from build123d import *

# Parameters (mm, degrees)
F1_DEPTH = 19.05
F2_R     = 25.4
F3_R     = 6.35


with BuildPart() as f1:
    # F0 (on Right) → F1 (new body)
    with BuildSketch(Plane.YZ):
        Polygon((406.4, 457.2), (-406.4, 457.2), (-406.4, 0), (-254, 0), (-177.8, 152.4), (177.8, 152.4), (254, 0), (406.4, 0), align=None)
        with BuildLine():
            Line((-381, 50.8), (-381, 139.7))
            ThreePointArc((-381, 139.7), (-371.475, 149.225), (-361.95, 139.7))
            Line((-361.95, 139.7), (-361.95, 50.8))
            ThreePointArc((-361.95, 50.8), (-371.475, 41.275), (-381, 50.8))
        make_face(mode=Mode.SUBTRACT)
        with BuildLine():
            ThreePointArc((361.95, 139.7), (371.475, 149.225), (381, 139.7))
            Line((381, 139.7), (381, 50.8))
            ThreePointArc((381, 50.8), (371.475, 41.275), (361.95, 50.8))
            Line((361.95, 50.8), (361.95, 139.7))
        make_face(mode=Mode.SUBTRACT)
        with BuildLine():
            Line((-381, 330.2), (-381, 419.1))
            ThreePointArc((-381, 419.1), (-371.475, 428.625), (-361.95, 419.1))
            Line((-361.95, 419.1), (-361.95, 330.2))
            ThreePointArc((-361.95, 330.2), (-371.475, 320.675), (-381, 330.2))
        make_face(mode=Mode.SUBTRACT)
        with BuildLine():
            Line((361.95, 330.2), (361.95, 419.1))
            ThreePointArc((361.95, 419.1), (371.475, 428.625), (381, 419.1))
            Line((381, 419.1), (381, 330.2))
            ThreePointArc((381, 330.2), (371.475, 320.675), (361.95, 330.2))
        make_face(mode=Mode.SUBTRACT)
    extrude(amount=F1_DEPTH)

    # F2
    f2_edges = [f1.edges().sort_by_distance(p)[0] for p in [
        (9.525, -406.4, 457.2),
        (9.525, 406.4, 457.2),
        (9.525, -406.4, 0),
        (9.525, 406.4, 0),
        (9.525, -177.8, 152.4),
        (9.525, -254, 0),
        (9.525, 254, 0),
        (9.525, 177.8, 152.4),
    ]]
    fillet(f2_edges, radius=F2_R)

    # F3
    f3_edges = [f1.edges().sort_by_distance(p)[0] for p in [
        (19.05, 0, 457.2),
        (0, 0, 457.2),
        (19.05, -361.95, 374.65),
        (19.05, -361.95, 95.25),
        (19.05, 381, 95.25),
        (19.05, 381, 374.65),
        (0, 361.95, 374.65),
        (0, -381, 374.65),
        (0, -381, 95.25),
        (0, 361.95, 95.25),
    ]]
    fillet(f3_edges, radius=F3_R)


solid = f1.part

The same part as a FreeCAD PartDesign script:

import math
import FreeCAD as App
import Part
import Sketcher
Q = App.Units.Quantity


def edges_at(feature, points):
    """Names of the edges that pass closest to the given points."""
    edges = feature.Shape.Edges
    near = lambda p: min(range(len(edges)), key=lambda i: edges[i].distToShape(Part.Vertex(*p))[0])
    return sorted({f"Edge{near(p) + 1}" for p in points})

doc = App.newDocument("Part")
params = doc.addObject("Spreadsheet::Sheet", "Params")
for row, (alias, value) in enumerate([
    ("sketch1_width", "32 in"),
    ("sketch1_width2", "6 in"),
    ("sketch1_width3", "14 in"),
    ("sketch1_height", "18 in"),
    ("sketch1_height2", "3.5 in"),
    ("pad1_length", "0.75 in"),
    ("fillet_radius", "1 in"),
    ("fillet2_radius", "0.25 in"),
], start=1):
    params.set(f"A{row}", alias)
    params.set(f"B{row}", "=" + value)
    params.setAlias(f"B{row}", alias)

body = doc.addObject("PartDesign::Body", "Body")

# Sketch on YZ plane
sketch1 = doc.addObject("Sketcher::SketchObject", "Sketch")
body.addObject(sketch1)
sketch1.AttachmentSupport = (doc.YZ_Plane, [""])
sketch1.MapMode = "FlatFace"
sketch1.addGeometry(Part.LineSegment(App.Vector(406, 457, 0), App.Vector(-406, 457, 0)), False)
sketch1.addGeometry(Part.LineSegment(App.Vector(-406, 457, 0), App.Vector(-406, 0, 0)), False)
sketch1.addGeometry(Part.LineSegment(App.Vector(-406, 0, 0), App.Vector(-254, 0, 0)), False)
sketch1.addGeometry(Part.LineSegment(App.Vector(-254, 0, 0), App.Vector(-178, 152, 0)), False)
sketch1.addGeometry(Part.LineSegment(App.Vector(-178, 152, 0), App.Vector(178, 152, 0)), False)
sketch1.addGeometry(Part.LineSegment(App.Vector(178, 152, 0), App.Vector(254, 0, 0)), False)
sketch1.addGeometry(Part.LineSegment(App.Vector(254, 0, 0), App.Vector(406, 0, 0)), False)
sketch1.addGeometry(Part.LineSegment(App.Vector(406, 0, 0), App.Vector(406, 457, 0)), False)
sketch1.addGeometry(Part.ArcOfCircle(Part.Circle(App.Vector(-371, 51, 0), App.Vector(0, 0, 1), 10), math.radians(180), math.radians(360)), False)
sketch1.addGeometry(Part.LineSegment(App.Vector(-381, 51, 0), App.Vector(-381, 140, 0)), False)
sketch1.addGeometry(Part.ArcOfCircle(Part.Circle(App.Vector(-371, 140, 0), App.Vector(0, 0, 1), 10), math.radians(0), math.radians(180)), False)
sketch1.addGeometry(Part.LineSegment(App.Vector(-362, 140, 0), App.Vector(-362, 51, 0)), False)
sketch1.addGeometry(Part.LineSegment(App.Vector(362, 51, 0), App.Vector(362, 140, 0)), False)
sketch1.addGeometry(Part.ArcOfCircle(Part.Circle(App.Vector(371, 140, 0), App.Vector(0, 0, 1), 10), math.radians(0), math.radians(180)), False)
sketch1.addGeometry(Part.LineSegment(App.Vector(381, 140, 0), App.Vector(381, 51, 0)), False)
sketch1.addGeometry(Part.ArcOfCircle(Part.Circle(App.Vector(371, 51, 0), App.Vector(0, 0, 1), 10), math.radians(180), math.radians(360)), False)
sketch1.addGeometry(Part.ArcOfCircle(Part.Circle(App.Vector(-371, 330, 0), App.Vector(0, 0, 1), 10), math.radians(180), math.radians(360)), False)
sketch1.addGeometry(Part.LineSegment(App.Vector(-381, 330, 0), App.Vector(-381, 419, 0)), False)
sketch1.addGeometry(Part.ArcOfCircle(Part.Circle(App.Vector(-371, 419, 0), App.Vector(0, 0, 1), 10), math.radians(0), math.radians(180)), False)
sketch1.addGeometry(Part.LineSegment(App.Vector(-362, 419, 0), App.Vector(-362, 330, 0)), False)
sketch1.addGeometry(Part.ArcOfCircle(Part.Circle(App.Vector(371, 330, 0), App.Vector(0, 0, 1), 10), math.radians(180), math.radians(360)), False)
sketch1.addGeometry(Part.LineSegment(App.Vector(362, 330, 0), App.Vector(362, 419, 0)), False)
sketch1.addGeometry(Part.ArcOfCircle(Part.Circle(App.Vector(371, 419, 0), App.Vector(0, 0, 1), 10), math.radians(0), math.radians(180)), False)
sketch1.addGeometry(Part.LineSegment(App.Vector(381, 419, 0), App.Vector(381, 330, 0)), False)
sketch1.addConstraint(Sketcher.Constraint("Coincident", 0, 2, 1, 1))
sketch1.addConstraint(Sketcher.Constraint("Coincident", 1, 2, 2, 1))
sketch1.addConstraint(Sketcher.Constraint("Coincident", 2, 2, 3, 1))
sketch1.addConstraint(Sketcher.Constraint("Coincident", 3, 2, 4, 1))
sketch1.addConstraint(Sketcher.Constraint("Coincident", 4, 2, 5, 1))
sketch1.addConstraint(Sketcher.Constraint("Coincident", 5, 2, 6, 1))
sketch1.addConstraint(Sketcher.Constraint("Coincident", 6, 2, 7, 1))
sketch1.addConstraint(Sketcher.Constraint("Coincident", 7, 2, 0, 1))
sketch1.addConstraint(Sketcher.Constraint("Tangent", 8, 1, 9, 1))
sketch1.addConstraint(Sketcher.Constraint("Tangent", 9, 2, 10, 2))
sketch1.addConstraint(Sketcher.Constraint("Tangent", 10, 1, 11, 1))
sketch1.addConstraint(Sketcher.Constraint("Tangent", 11, 2, 8, 2))
sketch1.addConstraint(Sketcher.Constraint("Tangent", 12, 2, 13, 2))
sketch1.addConstraint(Sketcher.Constraint("Tangent", 13, 1, 14, 1))
sketch1.addConstraint(Sketcher.Constraint("Tangent", 14, 2, 15, 2))
sketch1.addConstraint(Sketcher.Constraint("Tangent", 15, 1, 12, 1))
sketch1.addConstraint(Sketcher.Constraint("Tangent", 16, 1, 17, 1))
sketch1.addConstraint(Sketcher.Constraint("Tangent", 17, 2, 18, 2))
sketch1.addConstraint(Sketcher.Constraint("Tangent", 18, 1, 19, 1))
sketch1.addConstraint(Sketcher.Constraint("Tangent", 19, 2, 16, 2))
sketch1.addConstraint(Sketcher.Constraint("Tangent", 20, 1, 21, 1))
sketch1.addConstraint(Sketcher.Constraint("Tangent", 21, 2, 22, 2))
sketch1.addConstraint(Sketcher.Constraint("Tangent", 22, 1, 23, 1))
sketch1.addConstraint(Sketcher.Constraint("Tangent", 23, 2, 20, 2))
sketch1.addConstraint(Sketcher.Constraint("Horizontal", 0))
sketch1.addConstraint(Sketcher.Constraint("Vertical", 1))
sketch1.addConstraint(Sketcher.Constraint("Horizontal", 2))
sketch1.addConstraint(Sketcher.Constraint("Horizontal", 4))
sketch1.addConstraint(Sketcher.Constraint("Horizontal", 6))
sketch1.addConstraint(Sketcher.Constraint("Vertical", 7))
sketch1.addConstraint(Sketcher.Constraint("Vertical", 9))
sketch1.addConstraint(Sketcher.Constraint("Vertical", 11))
sketch1.addConstraint(Sketcher.Constraint("Vertical", 12))
sketch1.addConstraint(Sketcher.Constraint("Vertical", 14))
sketch1.addConstraint(Sketcher.Constraint("Vertical", 17))
sketch1.addConstraint(Sketcher.Constraint("Vertical", 19))
sketch1.addConstraint(Sketcher.Constraint("Vertical", 21))
sketch1.addConstraint(Sketcher.Constraint("Vertical", 23))
sketch1.addConstraint(Sketcher.Constraint("Equal", 10, 13))
sketch1.addConstraint(Sketcher.Constraint("Equal", 15, 16))
sketch1.addConstraint(Sketcher.Constraint("Equal", 18, 20))
sketch1.addConstraint(Sketcher.Constraint("Symmetric", 2, 2, 5, 2, -1, 1))
sketch1.addConstraint(Sketcher.Constraint("Symmetric", 10, 3, 13, 3, -2))
sketch1.addConstraint(Sketcher.Constraint("Symmetric", 16, 3, 20, 3, -2))
sketch1.addConstraint(Sketcher.Constraint("Symmetric", 1, 2, 6, 2, -2))
sketch1.addConstraint(Sketcher.Constraint("Horizontal", 8, 3, 15, 3))
sketch1.addConstraint(Sketcher.Constraint("Horizontal", 18, 3, 22, 3))
sketch1.addConstraint(Sketcher.Constraint("Vertical", 10, 3, 16, 3))
sketch1.addConstraint(Sketcher.Constraint("Equal", 14, 17))
sketch1.addConstraint(Sketcher.Constraint("Equal", 3, 5))
sketch1.addConstraint(Sketcher.Constraint("DistanceX", 0, 2, 0, 1, Q("32 in")))
sketch1.addConstraint(Sketcher.Constraint("DistanceX", 2, 1, 2, 2, Q("6 in")))
sketch1.addConstraint(Sketcher.Constraint("DistanceX", 4, 1, 4, 2, Q("14 in")))
sketch1.addConstraint(Sketcher.Constraint("DistanceY", 1, 2, 1, 1, Q("18 in")))
sketch1.addConstraint(Sketcher.Constraint("DistanceY", 9, 1, 9, 2, Q("3.5 in")))
sketch1.addConstraint(Sketcher.Constraint("DistanceY", -1, 1, 8, 3, Q("2 in")))
sketch1.addConstraint(Sketcher.Constraint("DistanceY", -1, 1, 16, 3, Q("13 in")))
sketch1.addConstraint(Sketcher.Constraint("DistanceY", -1, 1, 3, 2, Q("6 in")))
sketch1.addConstraint(Sketcher.Constraint("DistanceX", 8, 1, -1, 1, Q("15 in")))
sketch1.addConstraint(Sketcher.Constraint("Radius", 8, Q("0.375 in")))
sketch1.setExpression("Constraints[50]", "Params.sketch1_width")
sketch1.setExpression("Constraints[51]", "Params.sketch1_width2")
sketch1.setExpression("Constraints[52]", "Params.sketch1_width3")
sketch1.setExpression("Constraints[53]", "Params.sketch1_height")
sketch1.setExpression("Constraints[54]", "Params.sketch1_height2")
pad1 = doc.addObject("PartDesign::Pad", "Pad")
body.addObject(pad1)
pad1.Profile = sketch1
pad1.setExpression("Length", "Params.pad1_length")
doc.recompute()

fillet = doc.addObject("PartDesign::Fillet", "Fillet")
body.addObject(fillet)
fillet.Base = (pad1, edges_at(pad1, [
    (9.525, -406.4, 457.2),
    (9.525, 406.4, 457.2),
    (9.525, -406.4, 0),
    (9.525, 406.4, 0),
    (9.525, -177.8, 152.4),
    (9.525, -254, 0),
    (9.525, 254, 0),
    (9.525, 177.8, 152.4),
]))
fillet.setExpression("Radius", "Params.fillet_radius")
doc.recompute()

fillet2 = doc.addObject("PartDesign::Fillet", "Fillet001")
body.addObject(fillet2)
fillet2.Base = (fillet, edges_at(fillet, [
    (19.05, 0, 457.2),
    (0, 0, 457.2),
    (19.05, -361.95, 374.65),
    (19.05, -361.95, 95.25),
    (19.05, 381, 95.25),
    (19.05, 381, 374.65),
    (0, 361.95, 374.65),
    (0, -381, 374.65),
    (0, -381, 95.25),
    (0, 361.95, 95.25),
]))
fillet2.setExpression("Radius", "Params.fillet2_radius")

doc.recompute()
